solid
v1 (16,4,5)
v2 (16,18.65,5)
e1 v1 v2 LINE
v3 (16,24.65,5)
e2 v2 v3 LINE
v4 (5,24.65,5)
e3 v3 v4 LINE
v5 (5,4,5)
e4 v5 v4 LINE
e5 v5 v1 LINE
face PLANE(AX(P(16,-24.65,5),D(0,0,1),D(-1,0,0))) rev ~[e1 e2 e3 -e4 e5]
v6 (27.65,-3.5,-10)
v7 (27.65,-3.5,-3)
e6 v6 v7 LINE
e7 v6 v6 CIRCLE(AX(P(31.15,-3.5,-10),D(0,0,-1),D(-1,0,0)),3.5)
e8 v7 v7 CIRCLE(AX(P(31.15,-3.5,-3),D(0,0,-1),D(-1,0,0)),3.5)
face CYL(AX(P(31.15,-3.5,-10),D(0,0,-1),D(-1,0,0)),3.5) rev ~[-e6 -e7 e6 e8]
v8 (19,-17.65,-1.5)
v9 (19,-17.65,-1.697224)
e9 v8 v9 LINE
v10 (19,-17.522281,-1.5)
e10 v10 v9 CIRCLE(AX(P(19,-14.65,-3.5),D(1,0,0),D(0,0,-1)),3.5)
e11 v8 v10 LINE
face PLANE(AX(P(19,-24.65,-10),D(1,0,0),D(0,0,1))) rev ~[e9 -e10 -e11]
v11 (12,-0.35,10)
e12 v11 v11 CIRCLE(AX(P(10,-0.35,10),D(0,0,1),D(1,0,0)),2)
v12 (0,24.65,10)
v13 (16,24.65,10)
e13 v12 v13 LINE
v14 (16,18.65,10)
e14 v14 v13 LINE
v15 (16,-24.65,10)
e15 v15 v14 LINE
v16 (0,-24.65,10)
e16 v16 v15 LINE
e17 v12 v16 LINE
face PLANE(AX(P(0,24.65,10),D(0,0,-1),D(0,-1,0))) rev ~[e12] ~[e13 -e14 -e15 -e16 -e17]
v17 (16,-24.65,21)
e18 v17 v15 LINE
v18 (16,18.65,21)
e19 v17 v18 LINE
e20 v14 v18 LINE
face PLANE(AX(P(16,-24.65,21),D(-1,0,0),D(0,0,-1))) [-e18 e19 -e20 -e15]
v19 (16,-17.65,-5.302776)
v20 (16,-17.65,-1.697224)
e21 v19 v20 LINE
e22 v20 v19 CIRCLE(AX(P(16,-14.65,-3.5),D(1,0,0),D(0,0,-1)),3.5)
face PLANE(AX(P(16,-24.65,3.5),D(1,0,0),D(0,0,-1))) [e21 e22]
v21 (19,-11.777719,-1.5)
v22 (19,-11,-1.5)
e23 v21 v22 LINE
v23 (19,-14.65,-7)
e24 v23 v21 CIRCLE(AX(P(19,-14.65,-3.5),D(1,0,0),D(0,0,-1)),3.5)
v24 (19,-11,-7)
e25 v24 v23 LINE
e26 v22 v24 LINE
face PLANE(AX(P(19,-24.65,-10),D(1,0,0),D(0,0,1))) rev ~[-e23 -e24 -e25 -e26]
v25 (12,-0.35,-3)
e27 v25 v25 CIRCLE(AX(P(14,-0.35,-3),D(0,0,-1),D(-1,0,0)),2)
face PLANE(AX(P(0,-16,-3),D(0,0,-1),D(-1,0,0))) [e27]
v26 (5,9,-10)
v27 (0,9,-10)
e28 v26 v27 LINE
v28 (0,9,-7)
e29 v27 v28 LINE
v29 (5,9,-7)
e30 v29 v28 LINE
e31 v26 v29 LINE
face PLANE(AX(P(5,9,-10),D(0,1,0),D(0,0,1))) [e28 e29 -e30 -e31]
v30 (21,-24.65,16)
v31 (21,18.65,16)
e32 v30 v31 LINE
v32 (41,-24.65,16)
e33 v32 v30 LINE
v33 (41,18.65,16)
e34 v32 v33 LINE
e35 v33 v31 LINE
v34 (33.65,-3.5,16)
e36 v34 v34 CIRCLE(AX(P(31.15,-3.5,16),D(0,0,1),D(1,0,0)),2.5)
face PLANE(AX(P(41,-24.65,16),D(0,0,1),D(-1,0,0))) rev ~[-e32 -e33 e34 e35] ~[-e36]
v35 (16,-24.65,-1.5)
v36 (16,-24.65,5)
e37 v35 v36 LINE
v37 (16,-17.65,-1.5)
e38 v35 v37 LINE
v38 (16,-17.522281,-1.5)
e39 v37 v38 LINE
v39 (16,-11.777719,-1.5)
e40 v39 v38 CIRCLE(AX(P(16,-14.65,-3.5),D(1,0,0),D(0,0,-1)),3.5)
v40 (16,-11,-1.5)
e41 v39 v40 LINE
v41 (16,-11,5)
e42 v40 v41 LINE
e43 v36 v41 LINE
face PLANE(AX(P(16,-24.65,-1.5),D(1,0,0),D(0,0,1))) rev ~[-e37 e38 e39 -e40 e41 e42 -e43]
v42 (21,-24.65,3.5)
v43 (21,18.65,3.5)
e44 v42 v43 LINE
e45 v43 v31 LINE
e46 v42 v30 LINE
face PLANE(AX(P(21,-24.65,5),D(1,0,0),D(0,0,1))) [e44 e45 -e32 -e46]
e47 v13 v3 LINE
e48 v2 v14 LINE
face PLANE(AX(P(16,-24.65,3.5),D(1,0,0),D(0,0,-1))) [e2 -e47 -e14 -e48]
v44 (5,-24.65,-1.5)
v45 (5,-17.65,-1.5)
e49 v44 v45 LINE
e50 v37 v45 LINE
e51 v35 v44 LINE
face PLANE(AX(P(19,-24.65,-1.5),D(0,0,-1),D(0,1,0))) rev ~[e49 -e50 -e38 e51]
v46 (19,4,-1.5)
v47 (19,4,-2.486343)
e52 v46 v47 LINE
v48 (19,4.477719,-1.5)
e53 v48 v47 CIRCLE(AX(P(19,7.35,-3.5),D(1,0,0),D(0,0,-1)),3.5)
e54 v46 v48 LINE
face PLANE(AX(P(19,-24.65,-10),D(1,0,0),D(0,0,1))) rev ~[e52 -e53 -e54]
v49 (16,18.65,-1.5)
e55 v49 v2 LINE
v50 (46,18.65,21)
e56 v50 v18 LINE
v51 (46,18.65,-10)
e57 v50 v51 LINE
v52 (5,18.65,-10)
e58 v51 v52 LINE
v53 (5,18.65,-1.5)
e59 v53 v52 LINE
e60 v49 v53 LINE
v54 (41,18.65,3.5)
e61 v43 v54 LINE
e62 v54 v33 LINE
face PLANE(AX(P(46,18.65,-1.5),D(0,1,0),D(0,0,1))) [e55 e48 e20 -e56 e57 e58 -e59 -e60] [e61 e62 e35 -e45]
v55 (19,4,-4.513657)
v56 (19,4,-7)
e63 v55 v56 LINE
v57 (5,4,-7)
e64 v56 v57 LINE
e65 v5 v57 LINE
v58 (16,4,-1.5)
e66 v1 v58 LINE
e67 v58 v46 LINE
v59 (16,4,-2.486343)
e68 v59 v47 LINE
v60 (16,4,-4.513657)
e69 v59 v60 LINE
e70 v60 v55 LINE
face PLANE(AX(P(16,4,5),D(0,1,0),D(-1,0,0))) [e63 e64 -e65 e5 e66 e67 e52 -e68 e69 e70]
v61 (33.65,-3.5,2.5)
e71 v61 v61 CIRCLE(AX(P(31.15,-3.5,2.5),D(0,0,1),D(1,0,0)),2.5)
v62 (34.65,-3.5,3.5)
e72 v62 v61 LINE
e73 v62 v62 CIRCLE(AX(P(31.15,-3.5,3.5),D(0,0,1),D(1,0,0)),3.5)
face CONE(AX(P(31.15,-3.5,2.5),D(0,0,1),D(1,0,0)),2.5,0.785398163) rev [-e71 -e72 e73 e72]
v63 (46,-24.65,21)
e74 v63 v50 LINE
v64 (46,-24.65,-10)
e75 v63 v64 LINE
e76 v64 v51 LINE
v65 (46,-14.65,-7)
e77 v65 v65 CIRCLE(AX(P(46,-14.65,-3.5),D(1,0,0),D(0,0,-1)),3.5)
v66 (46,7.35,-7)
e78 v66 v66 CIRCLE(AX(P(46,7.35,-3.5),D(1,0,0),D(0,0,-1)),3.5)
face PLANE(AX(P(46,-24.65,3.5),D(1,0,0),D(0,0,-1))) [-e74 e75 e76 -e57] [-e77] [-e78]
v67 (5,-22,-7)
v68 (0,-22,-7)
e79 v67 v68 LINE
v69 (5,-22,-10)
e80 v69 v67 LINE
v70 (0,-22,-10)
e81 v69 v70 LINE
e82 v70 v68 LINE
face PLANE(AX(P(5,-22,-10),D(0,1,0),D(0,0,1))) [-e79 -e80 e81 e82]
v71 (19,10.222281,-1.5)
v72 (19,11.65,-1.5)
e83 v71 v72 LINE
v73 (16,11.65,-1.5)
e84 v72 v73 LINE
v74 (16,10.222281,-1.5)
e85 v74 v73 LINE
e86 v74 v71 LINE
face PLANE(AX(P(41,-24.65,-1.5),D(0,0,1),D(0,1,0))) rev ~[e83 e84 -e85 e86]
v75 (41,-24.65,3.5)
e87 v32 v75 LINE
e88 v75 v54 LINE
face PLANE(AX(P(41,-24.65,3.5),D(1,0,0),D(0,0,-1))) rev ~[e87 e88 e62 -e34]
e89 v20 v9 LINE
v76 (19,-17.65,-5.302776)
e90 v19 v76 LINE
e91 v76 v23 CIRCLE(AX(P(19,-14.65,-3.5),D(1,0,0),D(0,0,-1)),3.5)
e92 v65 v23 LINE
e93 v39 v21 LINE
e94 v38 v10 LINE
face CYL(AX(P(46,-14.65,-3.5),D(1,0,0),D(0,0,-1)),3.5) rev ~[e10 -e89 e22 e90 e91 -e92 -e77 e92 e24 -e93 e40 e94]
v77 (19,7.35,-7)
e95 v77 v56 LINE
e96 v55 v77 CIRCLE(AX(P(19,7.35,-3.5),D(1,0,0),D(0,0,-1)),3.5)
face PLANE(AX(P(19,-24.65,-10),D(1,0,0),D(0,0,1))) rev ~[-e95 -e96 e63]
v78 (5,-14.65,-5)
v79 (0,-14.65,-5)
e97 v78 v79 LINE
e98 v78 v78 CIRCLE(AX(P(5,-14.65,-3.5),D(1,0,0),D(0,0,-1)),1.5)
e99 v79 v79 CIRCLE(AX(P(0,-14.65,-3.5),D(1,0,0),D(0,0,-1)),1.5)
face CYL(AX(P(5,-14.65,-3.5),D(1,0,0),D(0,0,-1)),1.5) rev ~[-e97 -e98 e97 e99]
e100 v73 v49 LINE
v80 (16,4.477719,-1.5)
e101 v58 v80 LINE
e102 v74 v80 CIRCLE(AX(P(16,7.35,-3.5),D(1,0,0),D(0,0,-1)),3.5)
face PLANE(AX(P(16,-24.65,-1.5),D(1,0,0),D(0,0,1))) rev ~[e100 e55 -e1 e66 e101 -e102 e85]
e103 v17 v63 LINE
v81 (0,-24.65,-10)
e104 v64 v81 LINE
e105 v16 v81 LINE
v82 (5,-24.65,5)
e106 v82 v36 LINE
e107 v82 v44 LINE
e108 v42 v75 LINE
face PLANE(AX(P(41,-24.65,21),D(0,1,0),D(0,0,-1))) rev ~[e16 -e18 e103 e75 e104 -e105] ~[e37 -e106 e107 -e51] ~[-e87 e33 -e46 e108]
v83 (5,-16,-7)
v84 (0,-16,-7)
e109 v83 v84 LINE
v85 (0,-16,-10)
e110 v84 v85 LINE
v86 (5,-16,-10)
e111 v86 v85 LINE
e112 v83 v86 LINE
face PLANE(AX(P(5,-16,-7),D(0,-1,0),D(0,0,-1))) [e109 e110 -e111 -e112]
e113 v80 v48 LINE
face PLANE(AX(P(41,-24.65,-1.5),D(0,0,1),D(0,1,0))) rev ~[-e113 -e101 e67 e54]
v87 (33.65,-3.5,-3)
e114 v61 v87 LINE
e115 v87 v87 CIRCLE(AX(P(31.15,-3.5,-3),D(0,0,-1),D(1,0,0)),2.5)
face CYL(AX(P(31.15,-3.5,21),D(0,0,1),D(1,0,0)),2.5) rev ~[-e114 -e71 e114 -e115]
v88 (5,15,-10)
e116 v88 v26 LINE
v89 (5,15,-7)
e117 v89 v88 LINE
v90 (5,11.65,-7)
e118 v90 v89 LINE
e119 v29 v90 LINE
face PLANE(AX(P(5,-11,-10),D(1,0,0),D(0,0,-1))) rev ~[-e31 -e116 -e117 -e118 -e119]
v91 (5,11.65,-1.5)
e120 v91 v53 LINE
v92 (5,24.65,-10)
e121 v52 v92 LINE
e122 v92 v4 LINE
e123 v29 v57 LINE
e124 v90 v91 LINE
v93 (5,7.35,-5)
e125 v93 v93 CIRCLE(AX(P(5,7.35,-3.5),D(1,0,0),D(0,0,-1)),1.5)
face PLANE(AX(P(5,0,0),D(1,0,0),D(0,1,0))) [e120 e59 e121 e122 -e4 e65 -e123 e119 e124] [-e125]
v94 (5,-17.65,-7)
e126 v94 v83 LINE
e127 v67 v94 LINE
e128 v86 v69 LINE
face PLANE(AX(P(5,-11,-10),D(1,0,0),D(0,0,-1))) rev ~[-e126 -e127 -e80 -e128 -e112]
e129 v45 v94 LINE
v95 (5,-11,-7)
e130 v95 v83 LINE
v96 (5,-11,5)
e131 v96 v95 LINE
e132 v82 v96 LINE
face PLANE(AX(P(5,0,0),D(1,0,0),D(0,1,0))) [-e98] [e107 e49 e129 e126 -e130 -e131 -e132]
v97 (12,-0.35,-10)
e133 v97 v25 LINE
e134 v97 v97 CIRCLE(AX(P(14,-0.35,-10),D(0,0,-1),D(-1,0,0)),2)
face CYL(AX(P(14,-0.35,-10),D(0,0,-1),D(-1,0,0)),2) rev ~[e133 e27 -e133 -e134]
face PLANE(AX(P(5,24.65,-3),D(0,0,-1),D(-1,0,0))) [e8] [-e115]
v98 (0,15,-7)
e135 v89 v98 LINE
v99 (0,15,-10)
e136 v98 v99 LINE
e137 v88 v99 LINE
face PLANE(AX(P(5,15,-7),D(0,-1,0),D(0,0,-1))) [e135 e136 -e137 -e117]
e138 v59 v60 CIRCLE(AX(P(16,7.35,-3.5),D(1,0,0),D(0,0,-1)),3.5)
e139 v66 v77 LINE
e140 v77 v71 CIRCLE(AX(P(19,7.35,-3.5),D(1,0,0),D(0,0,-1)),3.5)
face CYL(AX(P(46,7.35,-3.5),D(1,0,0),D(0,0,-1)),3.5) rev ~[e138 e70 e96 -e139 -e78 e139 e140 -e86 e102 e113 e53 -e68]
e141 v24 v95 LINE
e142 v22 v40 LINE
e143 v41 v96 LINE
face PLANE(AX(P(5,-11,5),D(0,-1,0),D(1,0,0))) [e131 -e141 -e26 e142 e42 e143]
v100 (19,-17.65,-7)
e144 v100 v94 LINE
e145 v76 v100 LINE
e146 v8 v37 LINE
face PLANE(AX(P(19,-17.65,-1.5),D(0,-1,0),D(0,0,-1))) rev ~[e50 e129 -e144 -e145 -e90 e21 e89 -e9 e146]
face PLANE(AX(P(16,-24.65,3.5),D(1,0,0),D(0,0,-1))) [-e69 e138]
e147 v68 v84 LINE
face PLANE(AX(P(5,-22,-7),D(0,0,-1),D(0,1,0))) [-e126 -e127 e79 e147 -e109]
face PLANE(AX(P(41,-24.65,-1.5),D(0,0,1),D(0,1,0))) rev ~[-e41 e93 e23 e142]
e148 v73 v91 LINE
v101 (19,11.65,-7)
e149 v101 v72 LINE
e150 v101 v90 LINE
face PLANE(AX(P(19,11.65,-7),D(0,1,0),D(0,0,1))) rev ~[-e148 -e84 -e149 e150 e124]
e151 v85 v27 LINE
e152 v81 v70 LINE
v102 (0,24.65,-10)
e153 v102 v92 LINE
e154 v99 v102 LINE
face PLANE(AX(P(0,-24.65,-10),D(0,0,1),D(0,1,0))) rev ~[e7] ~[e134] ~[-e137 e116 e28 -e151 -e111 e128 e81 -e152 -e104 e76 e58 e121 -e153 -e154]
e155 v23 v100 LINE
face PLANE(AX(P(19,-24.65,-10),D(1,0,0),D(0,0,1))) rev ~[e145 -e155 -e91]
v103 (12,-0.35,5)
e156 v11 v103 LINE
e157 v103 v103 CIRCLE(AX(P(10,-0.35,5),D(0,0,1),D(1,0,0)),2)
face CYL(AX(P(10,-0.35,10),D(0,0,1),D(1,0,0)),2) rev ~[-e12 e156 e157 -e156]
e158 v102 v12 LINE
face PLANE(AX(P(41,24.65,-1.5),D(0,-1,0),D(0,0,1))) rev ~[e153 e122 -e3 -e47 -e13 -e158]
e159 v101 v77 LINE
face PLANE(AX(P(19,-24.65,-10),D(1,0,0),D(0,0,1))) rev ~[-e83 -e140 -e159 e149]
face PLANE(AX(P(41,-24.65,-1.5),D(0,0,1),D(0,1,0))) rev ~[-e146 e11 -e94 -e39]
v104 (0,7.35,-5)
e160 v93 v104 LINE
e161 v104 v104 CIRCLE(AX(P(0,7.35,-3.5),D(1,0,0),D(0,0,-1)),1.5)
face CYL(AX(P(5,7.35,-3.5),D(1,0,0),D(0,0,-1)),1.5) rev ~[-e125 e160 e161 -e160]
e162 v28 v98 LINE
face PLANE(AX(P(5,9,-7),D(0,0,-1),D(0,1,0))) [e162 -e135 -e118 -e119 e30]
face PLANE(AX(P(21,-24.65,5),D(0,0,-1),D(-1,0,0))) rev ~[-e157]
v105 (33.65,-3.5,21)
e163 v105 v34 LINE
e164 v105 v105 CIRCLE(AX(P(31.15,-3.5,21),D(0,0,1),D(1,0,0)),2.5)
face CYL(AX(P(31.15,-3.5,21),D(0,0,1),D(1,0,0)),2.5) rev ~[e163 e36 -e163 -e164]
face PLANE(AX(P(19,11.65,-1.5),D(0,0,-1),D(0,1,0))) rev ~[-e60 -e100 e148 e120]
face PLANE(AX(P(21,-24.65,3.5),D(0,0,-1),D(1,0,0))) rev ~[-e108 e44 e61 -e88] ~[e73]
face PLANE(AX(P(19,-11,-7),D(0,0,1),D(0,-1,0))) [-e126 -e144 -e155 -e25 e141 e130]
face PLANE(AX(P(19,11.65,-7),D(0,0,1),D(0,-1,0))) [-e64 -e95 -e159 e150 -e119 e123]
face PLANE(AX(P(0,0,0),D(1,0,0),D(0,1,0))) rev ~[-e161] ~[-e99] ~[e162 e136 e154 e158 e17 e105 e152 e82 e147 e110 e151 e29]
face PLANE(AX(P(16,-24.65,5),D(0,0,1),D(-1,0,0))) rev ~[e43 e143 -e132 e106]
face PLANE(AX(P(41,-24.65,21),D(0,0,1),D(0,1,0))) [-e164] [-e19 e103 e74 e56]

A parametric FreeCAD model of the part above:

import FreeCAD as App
import Part
import Sketcher
Q = App.Units.Quantity


def edges_at(feature, points):
    """Names of the edges that pass closest to the given points."""
    edges = feature.Shape.Edges
    near = lambda p: min(range(len(edges)), key=lambda i: edges[i].distToShape(Part.Vertex(*p))[0])
    return sorted({f"Edge{near(p) + 1}" for p in points})

doc = App.newDocument("Part")
body = doc.addObject("PartDesign::Body", "Body")

# Sketch on YZ plane
sketch1 = body.newObject("Sketcher::SketchObject", "Sketch")
sketch1.AttachmentSupport = (doc.getObject("YZ_Plane"), [""])
sketch1.MapMode = "FlatFace"
sketch1.addGeometry([
    Part.LineSegment(App.Vector(25, -10, 0), App.Vector(25, 10, 0)),
    Part.LineSegment(App.Vector(25, 10, 0), App.Vector(-25, 10, 0)),
    Part.LineSegment(App.Vector(-25, 10, 0), App.Vector(-25, -10, 0)),
    Part.LineSegment(App.Vector(-25, -10, 0), App.Vector(25, -10, 0)),
], False)
sketch1.addConstraint([
    Sketcher.Constraint("Coincident", 0, 2, 1, 1),
    Sketcher.Constraint("Coincident", 1, 2, 2, 1),
    Sketcher.Constraint("Coincident", 2, 2, 3, 1),
    Sketcher.Constraint("Coincident", 3, 2, 0, 1),
    Sketcher.Constraint("Vertical", 0),
    Sketcher.Constraint("Horizontal", 1),
    Sketcher.Constraint("Vertical", 2),
    Sketcher.Constraint("Horizontal", 3),
    Sketcher.Constraint("Symmetric", 0, 2, 2, 2, -1, 1),
    Sketcher.Constraint("DistanceY", 0, 1, 0, 2, Q("20 mm")),
    Sketcher.Constraint("DistanceX", 1, 2, 1, 1, Q("49.3 mm")),
])
pad1 = body.newObject("PartDesign::Pad", "Pad")
pad1.Profile = sketch1
pad1.Length = 5

# Sketch on YZ plane
sketch2 = body.newObject("Sketcher::SketchObject", "Sketch001")
sketch2.AttachmentSupport = (doc.getObject("YZ_Plane"), [""])
sketch2.MapMode = "FlatFace"
sketch2.AttachmentOffset = App.Placement(App.Vector(0, 0, 5), App.Rotation())
sketch2.addGeometry([
    Part.Circle(App.Vector(-14.7, -3.5, 0), App.Vector(0, 0, 1), 1.5),
    Part.Circle(App.Vector(7.3, -3.5, 0), App.Vector(0, 0, 1), 1.5),
], False)
sketch2.addConstraint([
    Sketcher.Constraint("Equal", 0, 1),
    Sketcher.Constraint("Horizontal", 0, 3, 1, 3),
    Sketcher.Constraint("Diameter", 0, Q("3 mm")),
    Sketcher.Constraint("DistanceX", 0, 3, 1, 3, Q("22 mm")),
    Sketcher.Constraint("DistanceY", 0, 3, -1, 1, Q("3.5 mm")),
    Sketcher.Constraint("DistanceX", 0, 3, -1, 1, Q("14.65 mm")),
])
pocket1 = body.newObject("PartDesign::Pocket", "Pocket")
pocket1.Profile = sketch2
pocket1.Type = "ThroughAll"

# Sketch on XZ plane
sketch3 = body.newObject("Sketcher::SketchObject", "Sketch002")
sketch3.AttachmentSupport = (doc.getObject("XZ_Plane"), [""])
sketch3.MapMode = "FlatFace"
sketch3.AttachmentOffset = App.Placement(App.Vector(0, 0, 24.65), App.Rotation())
sketch3.addGeometry([
    Part.LineSegment(App.Vector(16, 10, 0), App.Vector(5, 10, 0)),  # 0
    Part.LineSegment(App.Vector(5, 10, 0), App.Vector(5, 5, 0)),  # 1
    Part.LineSegment(App.Vector(5, 5, 0), App.Vector(21, 5, 0)),  # 2
    Part.LineSegment(App.Vector(21, 5, 0), App.Vector(21, 16, 0)),  # 3
    Part.LineSegment(App.Vector(21, 16, 0), App.Vector(41, 16, 0)),  # 4
    Part.LineSegment(App.Vector(41, 16, 0), App.Vector(41, 21, 0)),  # 5
    Part.LineSegment(App.Vector(41, 21, 0), App.Vector(16, 21, 0)),  # 6
    Part.LineSegment(App.Vector(16, 21, 0), App.Vector(16, 10, 0)),  # 7
], False)
sketch3.addConstraint([
    Sketcher.Constraint("Coincident", 0, 2, 1, 1),
    Sketcher.Constraint("Coincident", 1, 2, 2, 1),
    Sketcher.Constraint("Coincident", 2, 2, 3, 1),
    Sketcher.Constraint("Coincident", 3, 2, 4, 1),
    Sketcher.Constraint("Coincident", 4, 2, 5, 1),
    Sketcher.Constraint("Coincident", 5, 2, 6, 1),
    Sketcher.Constraint("Coincident", 6, 2, 7, 1),
    Sketcher.Constraint("Coincident", 7, 2, 0, 1),
    Sketcher.Constraint("Horizontal", 0),
    Sketcher.Constraint("Vertical", 1),
    Sketcher.Constraint("Horizontal", 2),
    Sketcher.Constraint("Vertical", 3),
    Sketcher.Constraint("Horizontal", 4),
    Sketcher.Constraint("Vertical", 5),
    Sketcher.Constraint("Horizontal", 6),
    Sketcher.Constraint("Vertical", 7),
    Sketcher.Constraint("Equal", 0, 3),
    Sketcher.Constraint("Equal", 1, 5),
    Sketcher.Constraint("DistanceX", 0, 2, 0, 1, Q("11 mm")),
    Sketcher.Constraint("DistanceX", 2, 1, 2, 2, Q("16 mm")),
    Sketcher.Constraint("DistanceX", 4, 1, 4, 2, Q("20 mm")),
    Sketcher.Constraint("DistanceY", 1, 2, 1, 1, Q("5 mm")),
    Sketcher.Constraint("DistanceX", -1, 1, 0, 2, Q("5 mm")),
    Sketcher.Constraint("DistanceY", -1, 1, 1, 2, Q("5 mm")),
])
pad2 = body.newObject("PartDesign::Pad", "Pad001")
pad2.Profile = sketch3
pad2.Length = 49.3
pad2.Reversed = True

# Sketch on XY plane
sketch4 = body.newObject("Sketcher::SketchObject", "Sketch003")
sketch4.AttachmentSupport = (doc.getObject("XY_Plane"), [""])
sketch4.MapMode = "FlatFace"
sketch4.AttachmentOffset = App.Placement(App.Vector(0, 0, 10), App.Rotation())
sketch4.addGeometry(Part.Circle(App.Vector(10, -0.3, 0), App.Vector(0, 0, 1), 2), False)
sketch4.addConstraint([
    Sketcher.Constraint("Diameter", 0, Q("4 mm")),
    Sketcher.Constraint("DistanceX", -1, 1, 0, 3, Q("10 mm")),
    Sketcher.Constraint("DistanceY", 0, 3, -1, 1, Q("0.35 mm")),
])
pocket2 = body.newObject("PartDesign::Pocket", "Pocket001")
pocket2.Profile = sketch4
pocket2.Length = 5

# Sketch on YZ plane
sketch5 = body.newObject("Sketcher::SketchObject", "Sketch004")
sketch5.AttachmentSupport = (doc.getObject("YZ_Plane"), [""])
sketch5.MapMode = "FlatFace"
sketch5.AttachmentOffset = App.Placement(App.Vector(0, 0, 5), App.Rotation())
sketch5.addGeometry([
    Part.LineSegment(App.Vector(-22, -7, 0), App.Vector(-22, -10, 0)),  # 0
    Part.LineSegment(App.Vector(-22, -10, 0), App.Vector(-16, -10, 0)),  # 1
    Part.LineSegment(App.Vector(-16, -10, 0), App.Vector(-16, -7, 0)),  # 2
    Part.LineSegment(App.Vector(-16, -7, 0), App.Vector(-22, -7, 0)),  # 3
    Part.LineSegment(App.Vector(9, -7, 0), App.Vector(9, -10, 0)),  # 4
    Part.LineSegment(App.Vector(9, -10, 0), App.Vector(15, -10, 0)),  # 5
    Part.LineSegment(App.Vector(15, -10, 0), App.Vector(15, -7, 0)),  # 6
    Part.LineSegment(App.Vector(15, -7, 0), App.Vector(9, -7, 0)),  # 7
], False)
sketch5.addConstraint([
    Sketcher.Constraint("Coincident", 0, 2, 1, 1),
    Sketcher.Constraint("Coincident", 1, 2, 2, 1),
    Sketcher.Constraint("Coincident", 2, 2, 3, 1),
    Sketcher.Constraint("Coincident", 3, 2, 0, 1),
    Sketcher.Constraint("Coincident", 4, 2, 5, 1),
    Sketcher.Constraint("Coincident", 5, 2, 6, 1),
    Sketcher.Constraint("Coincident", 6, 2, 7, 1),
    Sketcher.Constraint("Coincident", 7, 2, 4, 1),
    Sketcher.Constraint("Vertical", 0),
    Sketcher.Constraint("Horizontal", 1),
    Sketcher.Constraint("Vertical", 2),
    Sketcher.Constraint("Horizontal", 3),
    Sketcher.Constraint("Vertical", 4),
    Sketcher.Constraint("Horizontal", 5),
    Sketcher.Constraint("Vertical", 6),
    Sketcher.Constraint("Horizontal", 7),
    Sketcher.Constraint("Horizontal", 1, 2, 4, 2),
    Sketcher.Constraint("Horizontal", 3, 2, 6, 2),
    Sketcher.Constraint("Equal", 3, 5),
    Sketcher.Constraint("DistanceX", 1, 1, 1, 2, Q("6 mm")),
    Sketcher.Constraint("DistanceY", 0, 2, 0, 1, Q("3 mm")),
    Sketcher.Constraint("DistanceX", 0, 2, 4, 2, Q("31 mm")),
    Sketcher.Constraint("DistanceX", 0, 2, -1, 1, Q("22 mm")),
    Sketcher.Constraint("DistanceY", 0, 2, -1, 1, Q("10 mm")),
])
pocket3 = body.newObject("PartDesign::Pocket", "Pocket002")
pocket3.Profile = sketch5
pocket3.Type = "ThroughAll"

# Sketch on XY plane
sketch6 = body.newObject("Sketcher::SketchObject", "Sketch005")
sketch6.AttachmentSupport = (doc.getObject("XY_Plane"), [""])
sketch6.MapMode = "FlatFace"
sketch6.AttachmentOffset = App.Placement(App.Vector(0, 0, 5), App.Rotation())
sketch6.addGeometry([
    Part.LineSegment(App.Vector(5, -11, 0), App.Vector(5, 4, 0)),
    Part.LineSegment(App.Vector(5, 4, 0), App.Vector(19, 4, 0)),
    Part.LineSegment(App.Vector(19, 4, 0), App.Vector(19, -11, 0)),
    Part.LineSegment(App.Vector(19, -11, 0), App.Vector(5, -11, 0)),
], False)
sketch6.addConstraint([
    Sketcher.Constraint("Coincident", 0, 2, 1, 1),
    Sketcher.Constraint("Coincident", 1, 2, 2, 1),
    Sketcher.Constraint("Coincident", 2, 2, 3, 1),
    Sketcher.Constraint("Coincident", 3, 2, 0, 1),
    Sketcher.Constraint("Vertical", 0),
    Sketcher.Constraint("Horizontal", 1),
    Sketcher.Constraint("Vertical", 2),
    Sketcher.Constraint("Horizontal", 3),
    Sketcher.Constraint("DistanceX", 1, 1, 1, 2, Q("14 mm")),
    Sketcher.Constraint("DistanceY", 0, 1, 0, 2, Q("15 mm")),
    Sketcher.Constraint("DistanceX", -1, 1, 0, 2, Q("5 mm")),
    Sketcher.Constraint("DistanceY", -1, 1, 0, 2, Q("4 mm")),
])
pad3 = body.newObject("PartDesign::Pad", "Pad002")
pad3.Profile = sketch6
pad3.Length = 15
pad3.Reversed = True

# Sketch on XY plane
sketch7 = body.newObject("Sketcher::SketchObject", "Sketch006")
sketch7.AttachmentSupport = (doc.getObject("XY_Plane"), [""])
sketch7.MapMode = "FlatFace"
sketch7.AttachmentOffset = App.Placement(App.Vector(0, 0, -10), App.Rotation())
sketch7.addGeometry(Part.Circle(App.Vector(14, -0.3, 0), App.Vector(0, 0, 1), 2), False)
sketch7.addConstraint([
    Sketcher.Constraint("Diameter", 0, Q("4 mm")),
    Sketcher.Constraint("DistanceX", -1, 1, 0, 3, Q("14 mm")),
    Sketcher.Constraint("DistanceY", 0, 3, -1, 1, Q("0.35 mm")),
])
pocket4 = body.newObject("PartDesign::Pocket", "Pocket003")
pocket4.Profile = sketch7
pocket4.Length = 7
pocket4.Reversed = True

# Sketch on XZ plane
sketch8 = body.newObject("Sketcher::SketchObject", "Sketch007")
sketch8.AttachmentSupport = (doc.getObject("XZ_Plane"), [""])
sketch8.MapMode = "FlatFace"
sketch8.AttachmentOffset = App.Placement(App.Vector(0, 0, 24.65), App.Rotation())
sketch8.addGeometry([
    Part.LineSegment(App.Vector(21, 4, 0), App.Vector(21, 10, 0)),  # 0
    Part.LineSegment(App.Vector(21, 10, 0), App.Vector(16, 10, 0)),  # 1
    Part.LineSegment(App.Vector(16, 10, 0), App.Vector(16, -2, 0)),  # 2
    Part.LineSegment(App.Vector(16, -2, 0), App.Vector(41, -2, 0)),  # 3
    Part.LineSegment(App.Vector(41, -2, 0), App.Vector(41, 4, 0)),  # 4
    Part.LineSegment(App.Vector(41, 4, 0), App.Vector(21, 4, 0)),  # 5
], False)
sketch8.addConstraint([
    Sketcher.Constraint("Coincident", 0, 2, 1, 1),
    Sketcher.Constraint("Coincident", 1, 2, 2, 1),
    Sketcher.Constraint("Coincident", 2, 2, 3, 1),
    Sketcher.Constraint("Coincident", 3, 2, 4, 1),
    Sketcher.Constraint("Coincident", 4, 2, 5, 1),
    Sketcher.Constraint("Coincident", 5, 2, 0, 1),
    Sketcher.Constraint("Vertical", 0),
    Sketcher.Constraint("Horizontal", 1),
    Sketcher.Constraint("Vertical", 2),
    Sketcher.Constraint("Horizontal", 3),
    Sketcher.Constraint("Vertical", 4),
    Sketcher.Constraint("Horizontal", 5),
    Sketcher.Constraint("Equal", 1, 4),
    Sketcher.Constraint("DistanceX", 1, 2, 1, 1, Q("5 mm")),
    Sketcher.Constraint("DistanceX", 3, 1, 3, 2, Q("25 mm")),
    Sketcher.Constraint("DistanceY", 0, 1, 0, 2, Q("6.5 mm")),
    Sketcher.Constraint("DistanceX", -1, 1, 0, 2, Q("21 mm")),
    Sketcher.Constraint("DistanceY", -1, 1, 0, 2, Q("10 mm")),
])
pad4 = body.newObject("PartDesign::Pad", "Pad003")
pad4.Profile = sketch8
pad4.Length = 49.3
pad4.Reversed = True

# Sketch on YZ plane
sketch9 = body.newObject("Sketcher::SketchObject", "Sketch008")
sketch9.AttachmentSupport = (doc.getObject("YZ_Plane"), [""])
sketch9.MapMode = "FlatFace"
sketch9.AttachmentOffset = App.Placement(App.Vector(0, 0, 41), App.Rotation())
sketch9.addGeometry([
    Part.LineSegment(App.Vector(25, 21, 0), App.Vector(-25, 21, 0)),
    Part.LineSegment(App.Vector(-25, 21, 0), App.Vector(-25, -2, 0)),
    Part.LineSegment(App.Vector(-25, -2, 0), App.Vector(25, -2, 0)),
    Part.LineSegment(App.Vector(25, -2, 0), App.Vector(25, 21, 0)),
], False)
sketch9.addConstraint([
    Sketcher.Constraint("Coincident", 0, 2, 1, 1),
    Sketcher.Constraint("Coincident", 1, 2, 2, 1),
    Sketcher.Constraint("Coincident", 2, 2, 3, 1),
    Sketcher.Constraint("Coincident", 3, 2, 0, 1),
    Sketcher.Constraint("Horizontal", 0),
    Sketcher.Constraint("Vertical", 1),
    Sketcher.Constraint("Horizontal", 2),
    Sketcher.Constraint("Vertical", 3),
    Sketcher.Constraint("DistanceX", 0, 2, 0, 1, Q("49.3 mm")),
    Sketcher.Constraint("DistanceY", 1, 2, 1, 1, Q("22.5 mm")),
    Sketcher.Constraint("DistanceY", -1, 1, 0, 2, Q("21 mm")),
    Sketcher.Constraint("DistanceX", 0, 2, -1, 1, Q("24.65 mm")),
])
pad5 = body.newObject("PartDesign::Pad", "Pad004")
pad5.Profile = sketch9
pad5.Length = 5

# Sketch on YZ plane
sketch10 = body.newObject("Sketcher::SketchObject", "Sketch009")
sketch10.AttachmentSupport = (doc.getObject("YZ_Plane"), [""])
sketch10.MapMode = "FlatFace"
sketch10.AttachmentOffset = App.Placement(App.Vector(0, 0, 46), App.Rotation())
sketch10.addGeometry([
    Part.LineSegment(App.Vector(25, -2, 0), App.Vector(25, 21, 0)),
    Part.LineSegment(App.Vector(25, 21, 0), App.Vector(19, 21, 0)),
    Part.LineSegment(App.Vector(19, 21, 0), App.Vector(19, -2, 0)),
    Part.LineSegment(App.Vector(19, -2, 0), App.Vector(25, -2, 0)),
], False)
sketch10.addConstraint([
    Sketcher.Constraint("Coincident", 0, 2, 1, 1),
    Sketcher.Constraint("Coincident", 1, 2, 2, 1),
    Sketcher.Constraint("Coincident", 2, 2, 3, 1),
    Sketcher.Constraint("Coincident", 3, 2, 0, 1),
    Sketcher.Constraint("Vertical", 0),
    Sketcher.Constraint("Horizontal", 1),
    Sketcher.Constraint("Vertical", 2),
    Sketcher.Constraint("Horizontal", 3),
    Sketcher.Constraint("DistanceX", 1, 2, 1, 1, Q("6 mm")),
    Sketcher.Constraint("DistanceY", 0, 1, 0, 2, Q("22.5 mm")),
    Sketcher.Constraint("DistanceY", -1, 1, 0, 2, Q("21 mm")),
    Sketcher.Constraint("DistanceX", -1, 1, 0, 2, Q("24.65 mm")),
])
pocket5 = body.newObject("PartDesign::Pocket", "Pocket004")
pocket5.Profile = sketch10
pocket5.Length = 30

# Sketch on YZ plane
sketch11 = body.newObject("Sketcher::SketchObject", "Sketch010")
sketch11.AttachmentSupport = (doc.getObject("YZ_Plane"), [""])
sketch11.MapMode = "FlatFace"
sketch11.AttachmentOffset = App.Placement(App.Vector(0, 0, 19), App.Rotation())
sketch11.addGeometry([
    Part.LineSegment(App.Vector(-17.6, -1.5, 0), App.Vector(-24.6, -1.5, 0)),  # 0
    Part.LineSegment(App.Vector(-24.6, -1.5, 0), App.Vector(-24.6, -10, 0)),  # 1
    Part.LineSegment(App.Vector(-24.6, -10, 0), App.Vector(-11, -10, 0)),  # 2
    Part.LineSegment(App.Vector(-11, -10, 0), App.Vector(-11, -7, 0)),  # 3
    Part.LineSegment(App.Vector(-11, -7, 0), App.Vector(-17.6, -7, 0)),  # 4
    Part.LineSegment(App.Vector(-17.6, -7, 0), App.Vector(-17.6, -1.5, 0)),  # 5
    Part.LineSegment(App.Vector(18.6, -1.5, 0), App.Vector(11.7, -1.5, 0)),  # 6
    Part.LineSegment(App.Vector(11.7, -1.5, 0), App.Vector(11.7, -7, 0)),  # 7
    Part.LineSegment(App.Vector(11.7, -7, 0), App.Vector(4, -7, 0)),  # 8
    Part.LineSegment(App.Vector(4, -7, 0), App.Vector(4, -10, 0)),  # 9
    Part.LineSegment(App.Vector(4, -10, 0), App.Vector(18.6, -10, 0)),  # 10
    Part.LineSegment(App.Vector(18.6, -10, 0), App.Vector(18.6, -1.5, 0)),  # 11
], False)
sketch11.addConstraint([
    Sketcher.Constraint("Coincident", 0, 2, 1, 1),
    Sketcher.Constraint("Coincident", 1, 2, 2, 1),
    Sketcher.Constraint("Coincident", 2, 2, 3, 1),
    Sketcher.Constraint("Coincident", 3, 2, 4, 1),
    Sketcher.Constraint("Coincident", 4, 2, 5, 1),
    Sketcher.Constraint("Coincident", 5, 2, 0, 1),
    Sketcher.Constraint("Coincident", 6, 2, 7, 1),
    Sketcher.Constraint("Coincident", 7, 2, 8, 1),
    Sketcher.Constraint("Coincident", 8, 2, 9, 1),
    Sketcher.Constraint("Coincident", 9, 2, 10, 1),
    Sketcher.Constraint("Coincident", 10, 2, 11, 1),
    Sketcher.Constraint("Coincident", 11, 2, 6, 1),
    Sketcher.Constraint("Horizontal", 0),
    Sketcher.Constraint("Vertical", 1),
    Sketcher.Constraint("Horizontal", 2),
    Sketcher.Constraint("Vertical", 3),
    Sketcher.Constraint("Horizontal", 4),
    Sketcher.Constraint("Vertical", 5),
    Sketcher.Constraint("Horizontal", 6),
    Sketcher.Constraint("Vertical", 7),
    Sketcher.Constraint("Horizontal", 8),
    Sketcher.Constraint("Vertical", 9),
    Sketcher.Constraint("Horizontal", 10),
    Sketcher.Constraint("Vertical", 11),
    Sketcher.Constraint("Horizontal", 5, 2, 6, 2),
    Sketcher.Constraint("Horizontal", 4, 2, 7, 2),
    Sketcher.Constraint("Horizontal", 2, 2, 9, 2),
    Sketcher.Constraint("Equal", 0, 6),
    Sketcher.Constraint("DistanceX", 0, 2, 0, 1, Q("7 mm")),
    Sketcher.Constraint("DistanceY", 3, 1, 3, 2, Q("3 mm")),
    Sketcher.Constraint("DistanceY", 3, 2, -1, 1, Q("7 mm")),
    Sketcher.Constraint("DistanceY", 1, 2, 1, 1, Q("8.5 mm")),
    Sketcher.Constraint("DistanceX", 2, 2, -1, 1, Q("11 mm")),
    Sketcher.Constraint("DistanceX", -1, 1, 8, 2, Q("4 mm")),
    Sketcher.Constraint("DistanceX", 2, 1, 2, 2, Q("13.65 mm")),
    Sketcher.Constraint("DistanceX", 8, 2, 8, 1, Q("7.65 mm")),
])
pad6 = body.newObject("PartDesign::Pad", "Pad005")
pad6.Profile = sketch11
pad6.Length = 14
pad6.Reversed = True

# Sketch on XZ plane
sketch12 = body.newObject("Sketcher::SketchObject", "Sketch011")
sketch12.AttachmentSupport = (doc.getObject("XZ_Plane"), [""])
sketch12.MapMode = "FlatFace"
sketch12.AttachmentOffset = App.Placement(App.Vector(0, 0, 24.65), App.Rotation())
sketch12.addGeometry([
    Part.LineSegment(App.Vector(19, -2, 0), App.Vector(19, -10, 0)),
    Part.LineSegment(App.Vector(19, -10, 0), App.Vector(46, -10, 0)),
    Part.LineSegment(App.Vector(46, -10, 0), App.Vector(46, -2, 0)),
    Part.LineSegment(App.Vector(46, -2, 0), App.Vector(19, -2, 0)),
], False)
sketch12.addConstraint([
    Sketcher.Constraint("Coincident", 0, 2, 1, 1),
    Sketcher.Constraint("Coincident", 1, 2, 2, 1),
    Sketcher.Constraint("Coincident", 2, 2, 3, 1),
    Sketcher.Constraint("Coincident", 3, 2, 0, 1),
    Sketcher.Constraint("Vertical", 0),
    Sketcher.Constraint("Horizontal", 1),
    Sketcher.Constraint("Vertical", 2),
    Sketcher.Constraint("Horizontal", 3),
    Sketcher.Constraint("DistanceX", 1, 1, 1, 2, Q("27 mm")),
    Sketcher.Constraint("DistanceY", 0, 2, 0, 1, Q("8.5 mm")),
    Sketcher.Constraint("DistanceX", -1, 1, 0, 2, Q("19 mm")),
    Sketcher.Constraint("DistanceY", 0, 2, -1, 1, Q("10 mm")),
])
pad7 = body.newObject("PartDesign::Pad", "Pad006")
pad7.Profile = sketch12
pad7.Length = 43.3
pad7.Reversed = True

# Sketch on XY plane
sketch13 = body.newObject("Sketcher::SketchObject", "Sketch012")
sketch13.AttachmentSupport = (doc.getObject("XY_Plane"), [""])
sketch13.MapMode = "FlatFace"
sketch13.AttachmentOffset = App.Placement(App.Vector(0, 0, 21), App.Rotation())
sketch13.addGeometry(Part.Circle(App.Vector(31.1, -3.5, 0), App.Vector(0, 0, 1), 2.5), False)
sketch13.addConstraint([
    Sketcher.Constraint("Diameter", 0, Q("5 mm")),
    Sketcher.Constraint("DistanceY", 0, 3, -1, 1, Q("3.5 mm")),
    Sketcher.Constraint("DistanceX", -1, 1, 0, 3, Q("31.15 mm")),
])
pocket6 = body.newObject("PartDesign::Pocket", "Pocket005")
pocket6.Profile = sketch13
pocket6.Type = "ThroughAll"

# Sketch on XY plane
sketch14 = body.newObject("Sketcher::SketchObject", "Sketch013")
sketch14.AttachmentSupport = (doc.getObject("XY_Plane"), [""])
sketch14.MapMode = "FlatFace"
sketch14.AttachmentOffset = App.Placement(App.Vector(0, 0, -10), App.Rotation())
sketch14.addGeometry([
    Part.Circle(App.Vector(31.1, -3.5, 0), App.Vector(0, 0, 1), 3.5),
    Part.Circle(App.Vector(31.1, -3.5, 0), App.Vector(0, 0, 1), 2.5),
], False)
sketch14.addConstraint([
    Sketcher.Constraint("Coincident", 1, 3, 0, 3),
    Sketcher.Constraint("Diameter", 0, Q("7 mm")),
    Sketcher.Constraint("Diameter", 1, Q("5 mm")),
    Sketcher.Constraint("DistanceY", 0, 3, -1, 1, Q("3.5 mm")),
    Sketcher.Constraint("DistanceX", -1, 1, 0, 3, Q("31.15 mm")),
])
pocket7 = body.newObject("PartDesign::Pocket", "Pocket006")
pocket7.Profile = sketch14
pocket7.Length = 7
pocket7.Reversed = True

# Sketch on YZ plane
sketch15 = body.newObject("Sketcher::SketchObject", "Sketch014")
sketch15.AttachmentSupport = (doc.getObject("YZ_Plane"), [""])
sketch15.MapMode = "FlatFace"
sketch15.AttachmentOffset = App.Placement(App.Vector(0, 0, 46), App.Rotation())
sketch15.addGeometry([
    Part.Circle(App.Vector(-14.7, -3.5, 0), App.Vector(0, 0, 1), 3.5),
    Part.Circle(App.Vector(7.3, -3.5, 0), App.Vector(0, 0, 1), 3.5),
], False)
sketch15.addConstraint([
    Sketcher.Constraint("Equal", 0, 1),
    Sketcher.Constraint("Horizontal", 0, 3, 1, 3),
    Sketcher.Constraint("Diameter", 0, Q("7 mm")),
    Sketcher.Constraint("DistanceX", 0, 3, 1, 3, Q("22 mm")),
    Sketcher.Constraint("DistanceY", 0, 3, -1, 1, Q("3.5 mm")),
    Sketcher.Constraint("DistanceX", 0, 3, -1, 1, Q("14.65 mm")),
])
pocket8 = body.newObject("PartDesign::Pocket", "Pocket007")
pocket8.Profile = sketch15
pocket8.Length = 30
doc.recompute()

chamfer = body.newObject("PartDesign::Chamfer", "Chamfer")
chamfer.Base = (pocket8, edges_at(pocket8, [(28.65, -3.5, 3.5)]))
chamfer.Size = 1

doc.recompute()
